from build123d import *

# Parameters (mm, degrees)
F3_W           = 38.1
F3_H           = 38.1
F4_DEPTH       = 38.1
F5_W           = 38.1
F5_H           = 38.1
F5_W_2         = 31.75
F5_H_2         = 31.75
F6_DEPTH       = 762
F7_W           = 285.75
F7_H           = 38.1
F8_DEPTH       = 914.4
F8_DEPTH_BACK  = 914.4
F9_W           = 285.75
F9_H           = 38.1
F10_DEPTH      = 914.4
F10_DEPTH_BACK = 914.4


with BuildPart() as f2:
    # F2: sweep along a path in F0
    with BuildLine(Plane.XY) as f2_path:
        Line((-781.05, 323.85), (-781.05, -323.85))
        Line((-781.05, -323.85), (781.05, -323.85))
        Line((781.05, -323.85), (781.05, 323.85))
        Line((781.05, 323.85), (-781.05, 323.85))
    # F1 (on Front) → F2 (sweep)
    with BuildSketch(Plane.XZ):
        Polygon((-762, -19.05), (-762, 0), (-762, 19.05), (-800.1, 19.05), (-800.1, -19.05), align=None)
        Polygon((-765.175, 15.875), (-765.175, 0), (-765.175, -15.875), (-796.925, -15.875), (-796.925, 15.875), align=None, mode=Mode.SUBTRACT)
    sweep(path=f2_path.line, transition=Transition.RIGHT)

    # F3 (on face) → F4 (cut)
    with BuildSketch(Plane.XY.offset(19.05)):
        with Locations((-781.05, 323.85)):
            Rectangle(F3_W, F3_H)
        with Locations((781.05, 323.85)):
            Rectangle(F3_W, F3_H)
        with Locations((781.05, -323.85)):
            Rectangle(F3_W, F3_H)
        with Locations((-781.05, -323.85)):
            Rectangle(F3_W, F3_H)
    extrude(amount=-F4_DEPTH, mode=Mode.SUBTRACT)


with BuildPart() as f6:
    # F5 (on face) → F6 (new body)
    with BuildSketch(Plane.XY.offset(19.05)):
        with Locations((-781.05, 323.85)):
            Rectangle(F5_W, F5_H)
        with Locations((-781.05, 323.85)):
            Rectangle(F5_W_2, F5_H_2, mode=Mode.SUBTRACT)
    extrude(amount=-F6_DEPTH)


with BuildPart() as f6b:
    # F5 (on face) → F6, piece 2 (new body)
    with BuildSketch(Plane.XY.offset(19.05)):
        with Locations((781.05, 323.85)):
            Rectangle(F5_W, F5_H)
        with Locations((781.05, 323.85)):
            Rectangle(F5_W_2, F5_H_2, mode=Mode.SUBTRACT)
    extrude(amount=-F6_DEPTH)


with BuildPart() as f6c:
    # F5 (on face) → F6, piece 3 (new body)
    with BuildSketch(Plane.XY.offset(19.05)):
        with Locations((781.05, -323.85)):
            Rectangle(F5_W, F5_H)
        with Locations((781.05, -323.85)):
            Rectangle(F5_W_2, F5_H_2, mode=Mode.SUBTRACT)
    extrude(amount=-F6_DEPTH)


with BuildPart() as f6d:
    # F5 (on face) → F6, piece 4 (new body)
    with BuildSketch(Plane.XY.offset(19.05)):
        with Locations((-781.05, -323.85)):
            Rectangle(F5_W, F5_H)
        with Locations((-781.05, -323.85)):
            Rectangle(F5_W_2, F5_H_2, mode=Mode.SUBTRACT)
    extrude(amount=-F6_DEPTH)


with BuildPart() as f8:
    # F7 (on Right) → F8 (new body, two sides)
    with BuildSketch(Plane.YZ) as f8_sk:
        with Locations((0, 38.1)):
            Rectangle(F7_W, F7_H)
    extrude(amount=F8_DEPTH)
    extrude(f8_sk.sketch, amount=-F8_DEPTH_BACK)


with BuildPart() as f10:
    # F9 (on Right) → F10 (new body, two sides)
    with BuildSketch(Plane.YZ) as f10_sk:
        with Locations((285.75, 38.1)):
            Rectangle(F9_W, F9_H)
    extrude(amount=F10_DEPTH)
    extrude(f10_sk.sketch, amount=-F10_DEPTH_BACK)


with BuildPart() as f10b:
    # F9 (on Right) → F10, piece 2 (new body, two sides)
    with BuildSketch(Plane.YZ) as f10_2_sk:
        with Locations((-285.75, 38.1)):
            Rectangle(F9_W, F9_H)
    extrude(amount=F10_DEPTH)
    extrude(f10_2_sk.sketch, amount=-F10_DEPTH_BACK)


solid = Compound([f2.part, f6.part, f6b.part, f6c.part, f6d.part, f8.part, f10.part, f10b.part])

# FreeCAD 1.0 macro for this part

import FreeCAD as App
import Part
import Sketcher
from FreeCAD import Vector
Q = App.Units.Quantity


def add_polygon(sketch, points):
    """Adds a closed chain of lines whose ends are joined by coincident constraints."""
    first, n = sketch.GeometryCount, len(points)
    for a, b in zip(points, points[1:] + points[:1]):
        sketch.addGeometry(Part.LineSegment(App.Vector(*a, 0), App.Vector(*b, 0)), False)
    for i in range(n):
        sketch.addConstraint(Sketcher.Constraint("Coincident", first + i, 2, first + (i + 1) % n, 1))

doc = App.newDocument("Part")
body = doc.addObject("PartDesign::Body", "Body")
body.AllowCompound = True

sketch1 = body.newObject("Sketcher::SketchObject", "Sketch")
sketch1.AttachmentSupport = (doc.getObject("XZ_Plane"), [""])
sketch1.MapMode = "FlatFace"
add_polygon(sketch1, [(-762, -19), (-762, 19), (-800, 19), (-800, -19)])
add_polygon(sketch1, [(-797, 16), (-765, 16), (-765, -16), (-797, -16)])
sketch1.addConstraint(Sketcher.Constraint("Vertical", 0))
sketch1.addConstraint(Sketcher.Constraint("Horizontal", 1))
sketch1.addConstraint(Sketcher.Constraint("Vertical", 2))
sketch1.addConstraint(Sketcher.Constraint("Horizontal", 3))
sketch1.addConstraint(Sketcher.Constraint("Horizontal", 4))
sketch1.addConstraint(Sketcher.Constraint("Vertical", 5))
sketch1.addConstraint(Sketcher.Constraint("Horizontal", 6))
sketch1.addConstraint(Sketcher.Constraint("Vertical", 7))
sketch1.addConstraint(Sketcher.Constraint("Equal", 3, 0))
sketch1.addConstraint(Sketcher.Constraint("Equal", 6, 5))
sketch1.addConstraint(Sketcher.Constraint("DistanceX", 1, 2, 1, 1, Q("1.5 in")))
sketch1.addConstraint(Sketcher.Constraint("DistanceX", 0, 2, -1, 1, Q("30 in")))
sketch1.addConstraint(Sketcher.Constraint("DistanceX", 4, 1, 4, 2, Q("1.25 in")))
sketch1.addConstraint(Sketcher.Constraint("DistanceY", -1, 1, 0, 2, Q("0.75 in")))
sketch1.addConstraint(Sketcher.Constraint("DistanceX", 4, 2, -1, 1, Q("30.125 in")))
sketch1.addConstraint(Sketcher.Constraint("DistanceY", -1, 1, 4, 2, Q("0.625 in")))

sketch2 = body.newObject("Sketcher::SketchObject", "Sketch001")
sketch2.AttachmentSupport = (doc.getObject("XY_Plane"), [""])
sketch2.MapMode = "FlatFace"
add_polygon(sketch2, [(-781, 324), (-781, -324), (781, -324), (781, 324)])
sketch2.addConstraint(Sketcher.Constraint("Vertical", 0))
sketch2.addConstraint(Sketcher.Constraint("Horizontal", 1))
sketch2.addConstraint(Sketcher.Constraint("Vertical", 2))
sketch2.addConstraint(Sketcher.Constraint("Horizontal", 3))
sketch2.addConstraint(Sketcher.Constraint("Symmetric", 0, 2, 2, 2, -1, 1))
sketch2.addConstraint(Sketcher.Constraint("DistanceX", 1, 1, 1, 2, Q("61.5 in")))
sketch2.addConstraint(Sketcher.Constraint("DistanceY", 0, 2, 0, 1, Q("25.5 in")))
doc.recompute()

additivepipe = body.newObject("PartDesign::AdditivePipe", "AdditivePipe")
additivepipe.Profile = sketch1
additivepipe.Spine = (sketch2, ["Edge1", "Edge2", "Edge3", "Edge4"])
additivepipe.Transition = "Right corner"

sketch3 = body.newObject("Sketcher::SketchObject", "Sketch002")
sketch3.AttachmentSupport = (doc.getObject("XY_Plane"), [""])
sketch3.MapMode = "FlatFace"
sketch3.AttachmentOffset = App.Placement(Vector(0, 0, 0.75 * 25.4), App.Rotation())
add_polygon(sketch3, [(-800, 343), (-800, 305), (-762, 305), (-762, 343)])
add_polygon(sketch3, [(762, 343), (762, 305), (800, 305), (800, 343)])
add_polygon(sketch3, [(762, -305), (762, -343), (800, -343), (800, -305)])
add_polygon(sketch3, [(-800, -305), (-800, -343), (-762, -343), (-762, -305)])
sketch3.addConstraint(Sketcher.Constraint("Vertical", 0))
sketch3.addConstraint(Sketcher.Constraint("Horizontal", 1))
sketch3.addConstraint(Sketcher.Constraint("Vertical", 2))
sketch3.addConstraint(Sketcher.Constraint("Horizontal", 3))
sketch3.addConstraint(Sketcher.Constraint("Vertical", 4))
sketch3.addConstraint(Sketcher.Constraint("Horizontal", 5))
sketch3.addConstraint(Sketcher.Constraint("Vertical", 6))
sketch3.addConstraint(Sketcher.Constraint("Horizontal", 7))
sketch3.addConstraint(Sketcher.Constraint("Vertical", 8))
sketch3.addConstraint(Sketcher.Constraint("Horizontal", 9))
sketch3.addConstraint(Sketcher.Constraint("Vertical", 10))
sketch3.addConstraint(Sketcher.Constraint("Horizontal", 11))
sketch3.addConstraint(Sketcher.Constraint("Vertical", 12))
sketch3.addConstraint(Sketcher.Constraint("Horizontal", 13))
sketch3.addConstraint(Sketcher.Constraint("Vertical", 14))
sketch3.addConstraint(Sketcher.Constraint("Horizontal", 15))
sketch3.addConstraint(Sketcher.Constraint("Symmetric", 2, 2, 8, 2, -1, 1))
sketch3.addConstraint(Sketcher.Constraint("Symmetric", 0, 2, 10, 2, -1, 1))
sketch3.addConstraint(Sketcher.Constraint("Symmetric", 6, 2, 12, 2, -1, 1))
sketch3.addConstraint(Sketcher.Constraint("Symmetric", 4, 2, 14, 2, -1, 1))
sketch3.addConstraint(Sketcher.Constraint("Symmetric", 1, 2, 4, 2, -2))
sketch3.addConstraint(Sketcher.Constraint("Symmetric", 3, 2, 6, 2, -2))
sketch3.addConstraint(Sketcher.Constraint("Equal", 15, 0))
sketch3.addConstraint(Sketcher.Constraint("DistanceX", 1, 1, 1, 2, Q("1.5 in")))
sketch3.addConstraint(Sketcher.Constraint("DistanceY", -1, 1, 0, 2, Q("12 in")))
sketch3.addConstraint(Sketcher.Constraint("DistanceX", 1, 2, -1, 1, Q("30 in")))
pocket1 = body.newObject("PartDesign::Pocket", "Pocket")
pocket1.Profile = sketch3
pocket1.Length = Q("1.5 in")
body2 = doc.addObject("PartDesign::Body", "Body001")

sketch4 = body2.newObject("Sketcher::SketchObject", "Sketch003")
sketch4.AttachmentSupport = (doc.getObject("XY_Plane001"), [""])
sketch4.MapMode = "FlatFace"
sketch4.AttachmentOffset = App.Placement(Vector(0, 0, 0.75 * 25.4), App.Rotation())
add_polygon(sketch4, [(-800, 343), (-800, 305), (-762, 305), (-762, 343)])
add_polygon(sketch4, [(-765, 308), (-797, 308), (-797, 340), (-765, 340)])
sketch4.addConstraint(Sketcher.Constraint("Vertical", 0))
sketch4.addConstraint(Sketcher.Constraint("Horizontal", 1))
sketch4.addConstraint(Sketcher.Constraint("Vertical", 2))
sketch4.addConstraint(Sketcher.Constraint("Horizontal", 3))
sketch4.addConstraint(Sketcher.Constraint("Horizontal", 4))
sketch4.addConstraint(Sketcher.Constraint("Vertical", 5))
sketch4.addConstraint(Sketcher.Constraint("Horizontal", 6))
sketch4.addConstraint(Sketcher.Constraint("Vertical", 7))
sketch4.addConstraint(Sketcher.Constraint("Equal", 3, 0))
sketch4.addConstraint(Sketcher.Constraint("Equal", 6, 5))
sketch4.addConstraint(Sketcher.Constraint("DistanceX", 1, 1, 1, 2, Q("1.5 in")))
sketch4.addConstraint(Sketcher.Constraint("DistanceY", -1, 1, 0, 2, Q("12 in")))
sketch4.addConstraint(Sketcher.Constraint("DistanceX", 1, 2, -1, 1, Q("30 in")))
sketch4.addConstraint(Sketcher.Constraint("DistanceX", 4, 2, 4, 1, Q("1.25 in")))
sketch4.addConstraint(Sketcher.Constraint("DistanceX", 4, 2, -1, 1, Q("31.375 in")))
sketch4.addConstraint(Sketcher.Constraint("DistanceY", -1, 1, 4, 2, Q("12.125 in")))
pad1 = body2.newObject("PartDesign::Pad", "Pad")
pad1.Profile = sketch4
pad1.Length = Q("30 in")
pad1.Reversed = True
body3 = doc.addObject("PartDesign::Body", "Body002")

sketch5 = body3.newObject("Sketcher::SketchObject", "Sketch004")
sketch5.AttachmentSupport = (doc.getObject("XY_Plane002"), [""])
sketch5.MapMode = "FlatFace"
sketch5.AttachmentOffset = App.Placement(Vector(0, 0, 0.75 * 25.4), App.Rotation())
add_polygon(sketch5, [(762, 343), (762, 305), (800, 305), (800, 343)])
add_polygon(sketch5, [(797, 308), (765, 308), (765, 340), (797, 340)])
sketch5.addConstraint(Sketcher.Constraint("Vertical", 0))
sketch5.addConstraint(Sketcher.Constraint("Horizontal", 1))
sketch5.addConstraint(Sketcher.Constraint("Vertical", 2))
sketch5.addConstraint(Sketcher.Constraint("Horizontal", 3))
sketch5.addConstraint(Sketcher.Constraint("Horizontal", 4))
sketch5.addConstraint(Sketcher.Constraint("Vertical", 5))
sketch5.addConstraint(Sketcher.Constraint("Horizontal", 6))
sketch5.addConstraint(Sketcher.Constraint("Vertical", 7))
sketch5.addConstraint(Sketcher.Constraint("Equal", 3, 0))
sketch5.addConstraint(Sketcher.Constraint("Equal", 6, 5))
sketch5.addConstraint(Sketcher.Constraint("DistanceX", 1, 1, 1, 2, Q("1.5 in")))
sketch5.addConstraint(Sketcher.Constraint("DistanceX", -1, 1, 0, 2, Q("30 in")))
sketch5.addConstraint(Sketcher.Constraint("DistanceY", -1, 1, 0, 2, Q("12 in")))
sketch5.addConstraint(Sketcher.Constraint("DistanceX", 4, 2, 4, 1, Q("1.25 in")))
sketch5.addConstraint(Sketcher.Constraint("DistanceX", -1, 1, 4, 2, Q("30.125 in")))
sketch5.addConstraint(Sketcher.Constraint("DistanceY", -1, 1, 4, 2, Q("12.125 in")))
pad2 = body3.newObject("PartDesign::Pad", "Pad001")
pad2.Profile = sketch5
pad2.Length = Q("30 in")
pad2.Reversed = True
body4 = doc.addObject("PartDesign::Body", "Body003")

sketch6 = body4.newObject("Sketcher::SketchObject", "Sketch005")
sketch6.AttachmentSupport = (doc.getObject("XY_Plane003"), [""])
sketch6.MapMode = "FlatFace"
sketch6.AttachmentOffset = App.Placement(Vector(0, 0, 0.75 * 25.4), App.Rotation())
add_polygon(sketch6, [(762, -305), (762, -343), (800, -343), (800, -305)])
add_polygon(sketch6, [(797, -340), (765, -340), (765, -308), (797, -308)])
sketch6.addConstraint(Sketcher.Constraint("Vertical", 0))
sketch6.addConstraint(Sketcher.Constraint("Horizontal", 1))
sketch6.addConstraint(Sketcher.Constraint("Vertical", 2))
sketch6.addConstraint(Sketcher.Constraint("Horizontal", 3))
sketch6.addConstraint(Sketcher.Constraint("Horizontal", 4))
sketch6.addConstraint(Sketcher.Constraint("Vertical", 5))
sketch6.addConstraint(Sketcher.Constraint("Horizontal", 6))
sketch6.addConstraint(Sketcher.Constraint("Vertical", 7))
sketch6.addConstraint(Sketcher.Constraint("Equal", 3, 0))
sketch6.addConstraint(Sketcher.Constraint("Equal", 6, 5))
sketch6.addConstraint(Sketcher.Constraint("DistanceX", 1, 1, 1, 2, Q("1.5 in")))
sketch6.addConstraint(Sketcher.Constraint("DistanceX", -1, 1, 0, 2, Q("30 in")))
sketch6.addConstraint(Sketcher.Constraint("DistanceY", 2, 2, -1, 1, Q("12 in")))
sketch6.addConstraint(Sketcher.Constraint("DistanceX", 4, 2, 4, 1, Q("1.25 in")))
sketch6.addConstraint(Sketcher.Constraint("DistanceX", -1, 1, 4, 2, Q("30.125 in")))
sketch6.addConstraint(Sketcher.Constraint("DistanceY", 4, 2, -1, 1, Q("13.375 in")))
pad3 = body4.newObject("PartDesign::Pad", "Pad002")
pad3.Profile = sketch6
pad3.Length = Q("30 in")
pad3.Reversed = True
body5 = doc.addObject("PartDesign::Body", "Body004")

sketch7 = body5.newObject("Sketcher::SketchObject", "Sketch006")
sketch7.AttachmentSupport = (doc.getObject("XY_Plane004"), [""])
sketch7.MapMode = "FlatFace"
sketch7.AttachmentOffset = App.Placement(Vector(0, 0, 0.75 * 25.4), App.Rotation())
add_polygon(sketch7, [(-800, -305), (-800, -343), (-762, -343), (-762, -305)])
add_polygon(sketch7, [(-765, -340), (-797, -340), (-797, -308), (-765, -308)])
sketch7.addConstraint(Sketcher.Constraint("Vertical", 0))
sketch7.addConstraint(Sketcher.Constraint("Horizontal", 1))
sketch7.addConstraint(Sketcher.Constraint("Vertical", 2))
sketch7.addConstraint(Sketcher.Constraint("Horizontal", 3))
sketch7.addConstraint(Sketcher.Constraint("Horizontal", 4))
sketch7.addConstraint(Sketcher.Constraint("Vertical", 5))
sketch7.addConstraint(Sketcher.Constraint("Horizontal", 6))
sketch7.addConstraint(Sketcher.Constraint("Vertical", 7))
sketch7.addConstraint(Sketcher.Constraint("Equal", 3, 0))
sketch7.addConstraint(Sketcher.Constraint("Equal", 6, 5))
sketch7.addConstraint(Sketcher.Constraint("DistanceX", 1, 1, 1, 2, Q("1.5 in")))
sketch7.addConstraint(Sketcher.Constraint("DistanceX", 1, 2, -1, 1, Q("30 in")))
sketch7.addConstraint(Sketcher.Constraint("DistanceY", 2, 2, -1, 1, Q("12 in")))
sketch7.addConstraint(Sketcher.Constraint("DistanceX", 4, 2, 4, 1, Q("1.25 in")))
sketch7.addConstraint(Sketcher.Constraint("DistanceX", 4, 2, -1, 1, Q("31.375 in")))
sketch7.addConstraint(Sketcher.Constraint("DistanceY", 4, 2, -1, 1, Q("13.375 in")))
pad4 = body5.newObject("PartDesign::Pad", "Pad003")
pad4.Profile = sketch7
pad4.Length = Q("30 in")
pad4.Reversed = True
body6 = doc.addObject("PartDesign::Body", "Body005")

sketch8 = body6.newObject("Sketcher::SketchObject", "Sketch007")
sketch8.AttachmentSupport = (doc.getObject("YZ_Plane005"), [""])
sketch8.MapMode = "FlatFace"
add_polygon(sketch8, [(-143, 57), (-143, 19), (143, 19), (143, 57)])
sketch8.addConstraint(Sketcher.Constraint("Vertical", 0))
sketch8.addConstraint(Sketcher.Constraint("Horizontal", 1))
sketch8.addConstraint(Sketcher.Constraint("Vertical", 2))
sketch8.addConstraint(Sketcher.Constraint("Horizontal", 3))
sketch8.addConstraint(Sketcher.Constraint("DistanceY", 0, 2, 0, 1, Q("1.5 in")))
sketch8.addConstraint(Sketcher.Constraint("DistanceX", 1, 1, 1, 2, Q("11.25 in")))
sketch8.addConstraint(Sketcher.Constraint("DistanceY", -1, 1, 0, 2, Q("0.75 in")))
sketch8.addConstraint(Sketcher.Constraint("DistanceX", 0, 2, -1, 1, Q("5.625 in")))
pad5 = body6.newObject("PartDesign::Pad", "Pad004")
pad5.Profile = sketch8
pad5.Type = "TwoLengths"
pad5.Length = Q("36 in")
pad5.Length2 = Q("36 in")
body7 = doc.addObject("PartDesign::Body", "Body006")

sketch9 = body7.newObject("Sketcher::SketchObject", "Sketch008")
sketch9.AttachmentSupport = (doc.getObject("YZ_Plane006"), [""])
sketch9.MapMode = "FlatFace"
add_polygon(sketch9, [(143, 57), (143, 19), (429, 19), (429, 57)])
sketch9.addConstraint(Sketcher.Constraint("Vertical", 0))
sketch9.addConstraint(Sketcher.Constraint("Horizontal", 1))
sketch9.addConstraint(Sketcher.Constraint("Vertical", 2))
sketch9.addConstraint(Sketcher.Constraint("Horizontal", 3))
sketch9.addConstraint(Sketcher.Constraint("DistanceY", 0, 2, 0, 1, Q("1.5 in")))
sketch9.addConstraint(Sketcher.Constraint("DistanceX", 1, 1, 1, 2, Q("11.25 in")))
sketch9.addConstraint(Sketcher.Constraint("DistanceY", -1, 1, 0, 2, Q("0.75 in")))
sketch9.addConstraint(Sketcher.Constraint("DistanceX", -1, 1, 0, 2, Q("5.625 in")))
pad6 = body7.newObject("PartDesign::Pad", "Pad005")
pad6.Profile = sketch9
pad6.Type = "TwoLengths"
pad6.Length = Q("36 in")
pad6.Length2 = Q("36 in")
body8 = doc.addObject("PartDesign::Body", "Body007")

sketch10 = body8.newObject("Sketcher::SketchObject", "Sketch009")
sketch10.AttachmentSupport = (doc.getObject("YZ_Plane007"), [""])
sketch10.MapMode = "FlatFace"
add_polygon(sketch10, [(-429, 57), (-429, 19), (-143, 19), (-143, 57)])
sketch10.addConstraint(Sketcher.Constraint("Vertical", 0))
sketch10.addConstraint(Sketcher.Constraint("Horizontal", 1))
sketch10.addConstraint(Sketcher.Constraint("Vertical", 2))
sketch10.addConstraint(Sketcher.Constraint("Horizontal", 3))
sketch10.addConstraint(Sketcher.Constraint("DistanceY", 0, 2, 0, 1, Q("1.5 in")))
sketch10.addConstraint(Sketcher.Constraint("DistanceX", 1, 1, 1, 2, Q("11.25 in")))
sketch10.addConstraint(Sketcher.Constraint("DistanceY", -1, 1, 0, 2, Q("0.75 in")))
sketch10.addConstraint(Sketcher.Constraint("DistanceX", 0, 2, -1, 1, Q("16.875 in")))
pad7 = body8.newObject("PartDesign::Pad", "Pad006")
pad7.Profile = sketch10
pad7.Type = "TwoLengths"
pad7.Length = Q("36 in")
pad7.Length2 = Q("36 in")

doc.recompute()
